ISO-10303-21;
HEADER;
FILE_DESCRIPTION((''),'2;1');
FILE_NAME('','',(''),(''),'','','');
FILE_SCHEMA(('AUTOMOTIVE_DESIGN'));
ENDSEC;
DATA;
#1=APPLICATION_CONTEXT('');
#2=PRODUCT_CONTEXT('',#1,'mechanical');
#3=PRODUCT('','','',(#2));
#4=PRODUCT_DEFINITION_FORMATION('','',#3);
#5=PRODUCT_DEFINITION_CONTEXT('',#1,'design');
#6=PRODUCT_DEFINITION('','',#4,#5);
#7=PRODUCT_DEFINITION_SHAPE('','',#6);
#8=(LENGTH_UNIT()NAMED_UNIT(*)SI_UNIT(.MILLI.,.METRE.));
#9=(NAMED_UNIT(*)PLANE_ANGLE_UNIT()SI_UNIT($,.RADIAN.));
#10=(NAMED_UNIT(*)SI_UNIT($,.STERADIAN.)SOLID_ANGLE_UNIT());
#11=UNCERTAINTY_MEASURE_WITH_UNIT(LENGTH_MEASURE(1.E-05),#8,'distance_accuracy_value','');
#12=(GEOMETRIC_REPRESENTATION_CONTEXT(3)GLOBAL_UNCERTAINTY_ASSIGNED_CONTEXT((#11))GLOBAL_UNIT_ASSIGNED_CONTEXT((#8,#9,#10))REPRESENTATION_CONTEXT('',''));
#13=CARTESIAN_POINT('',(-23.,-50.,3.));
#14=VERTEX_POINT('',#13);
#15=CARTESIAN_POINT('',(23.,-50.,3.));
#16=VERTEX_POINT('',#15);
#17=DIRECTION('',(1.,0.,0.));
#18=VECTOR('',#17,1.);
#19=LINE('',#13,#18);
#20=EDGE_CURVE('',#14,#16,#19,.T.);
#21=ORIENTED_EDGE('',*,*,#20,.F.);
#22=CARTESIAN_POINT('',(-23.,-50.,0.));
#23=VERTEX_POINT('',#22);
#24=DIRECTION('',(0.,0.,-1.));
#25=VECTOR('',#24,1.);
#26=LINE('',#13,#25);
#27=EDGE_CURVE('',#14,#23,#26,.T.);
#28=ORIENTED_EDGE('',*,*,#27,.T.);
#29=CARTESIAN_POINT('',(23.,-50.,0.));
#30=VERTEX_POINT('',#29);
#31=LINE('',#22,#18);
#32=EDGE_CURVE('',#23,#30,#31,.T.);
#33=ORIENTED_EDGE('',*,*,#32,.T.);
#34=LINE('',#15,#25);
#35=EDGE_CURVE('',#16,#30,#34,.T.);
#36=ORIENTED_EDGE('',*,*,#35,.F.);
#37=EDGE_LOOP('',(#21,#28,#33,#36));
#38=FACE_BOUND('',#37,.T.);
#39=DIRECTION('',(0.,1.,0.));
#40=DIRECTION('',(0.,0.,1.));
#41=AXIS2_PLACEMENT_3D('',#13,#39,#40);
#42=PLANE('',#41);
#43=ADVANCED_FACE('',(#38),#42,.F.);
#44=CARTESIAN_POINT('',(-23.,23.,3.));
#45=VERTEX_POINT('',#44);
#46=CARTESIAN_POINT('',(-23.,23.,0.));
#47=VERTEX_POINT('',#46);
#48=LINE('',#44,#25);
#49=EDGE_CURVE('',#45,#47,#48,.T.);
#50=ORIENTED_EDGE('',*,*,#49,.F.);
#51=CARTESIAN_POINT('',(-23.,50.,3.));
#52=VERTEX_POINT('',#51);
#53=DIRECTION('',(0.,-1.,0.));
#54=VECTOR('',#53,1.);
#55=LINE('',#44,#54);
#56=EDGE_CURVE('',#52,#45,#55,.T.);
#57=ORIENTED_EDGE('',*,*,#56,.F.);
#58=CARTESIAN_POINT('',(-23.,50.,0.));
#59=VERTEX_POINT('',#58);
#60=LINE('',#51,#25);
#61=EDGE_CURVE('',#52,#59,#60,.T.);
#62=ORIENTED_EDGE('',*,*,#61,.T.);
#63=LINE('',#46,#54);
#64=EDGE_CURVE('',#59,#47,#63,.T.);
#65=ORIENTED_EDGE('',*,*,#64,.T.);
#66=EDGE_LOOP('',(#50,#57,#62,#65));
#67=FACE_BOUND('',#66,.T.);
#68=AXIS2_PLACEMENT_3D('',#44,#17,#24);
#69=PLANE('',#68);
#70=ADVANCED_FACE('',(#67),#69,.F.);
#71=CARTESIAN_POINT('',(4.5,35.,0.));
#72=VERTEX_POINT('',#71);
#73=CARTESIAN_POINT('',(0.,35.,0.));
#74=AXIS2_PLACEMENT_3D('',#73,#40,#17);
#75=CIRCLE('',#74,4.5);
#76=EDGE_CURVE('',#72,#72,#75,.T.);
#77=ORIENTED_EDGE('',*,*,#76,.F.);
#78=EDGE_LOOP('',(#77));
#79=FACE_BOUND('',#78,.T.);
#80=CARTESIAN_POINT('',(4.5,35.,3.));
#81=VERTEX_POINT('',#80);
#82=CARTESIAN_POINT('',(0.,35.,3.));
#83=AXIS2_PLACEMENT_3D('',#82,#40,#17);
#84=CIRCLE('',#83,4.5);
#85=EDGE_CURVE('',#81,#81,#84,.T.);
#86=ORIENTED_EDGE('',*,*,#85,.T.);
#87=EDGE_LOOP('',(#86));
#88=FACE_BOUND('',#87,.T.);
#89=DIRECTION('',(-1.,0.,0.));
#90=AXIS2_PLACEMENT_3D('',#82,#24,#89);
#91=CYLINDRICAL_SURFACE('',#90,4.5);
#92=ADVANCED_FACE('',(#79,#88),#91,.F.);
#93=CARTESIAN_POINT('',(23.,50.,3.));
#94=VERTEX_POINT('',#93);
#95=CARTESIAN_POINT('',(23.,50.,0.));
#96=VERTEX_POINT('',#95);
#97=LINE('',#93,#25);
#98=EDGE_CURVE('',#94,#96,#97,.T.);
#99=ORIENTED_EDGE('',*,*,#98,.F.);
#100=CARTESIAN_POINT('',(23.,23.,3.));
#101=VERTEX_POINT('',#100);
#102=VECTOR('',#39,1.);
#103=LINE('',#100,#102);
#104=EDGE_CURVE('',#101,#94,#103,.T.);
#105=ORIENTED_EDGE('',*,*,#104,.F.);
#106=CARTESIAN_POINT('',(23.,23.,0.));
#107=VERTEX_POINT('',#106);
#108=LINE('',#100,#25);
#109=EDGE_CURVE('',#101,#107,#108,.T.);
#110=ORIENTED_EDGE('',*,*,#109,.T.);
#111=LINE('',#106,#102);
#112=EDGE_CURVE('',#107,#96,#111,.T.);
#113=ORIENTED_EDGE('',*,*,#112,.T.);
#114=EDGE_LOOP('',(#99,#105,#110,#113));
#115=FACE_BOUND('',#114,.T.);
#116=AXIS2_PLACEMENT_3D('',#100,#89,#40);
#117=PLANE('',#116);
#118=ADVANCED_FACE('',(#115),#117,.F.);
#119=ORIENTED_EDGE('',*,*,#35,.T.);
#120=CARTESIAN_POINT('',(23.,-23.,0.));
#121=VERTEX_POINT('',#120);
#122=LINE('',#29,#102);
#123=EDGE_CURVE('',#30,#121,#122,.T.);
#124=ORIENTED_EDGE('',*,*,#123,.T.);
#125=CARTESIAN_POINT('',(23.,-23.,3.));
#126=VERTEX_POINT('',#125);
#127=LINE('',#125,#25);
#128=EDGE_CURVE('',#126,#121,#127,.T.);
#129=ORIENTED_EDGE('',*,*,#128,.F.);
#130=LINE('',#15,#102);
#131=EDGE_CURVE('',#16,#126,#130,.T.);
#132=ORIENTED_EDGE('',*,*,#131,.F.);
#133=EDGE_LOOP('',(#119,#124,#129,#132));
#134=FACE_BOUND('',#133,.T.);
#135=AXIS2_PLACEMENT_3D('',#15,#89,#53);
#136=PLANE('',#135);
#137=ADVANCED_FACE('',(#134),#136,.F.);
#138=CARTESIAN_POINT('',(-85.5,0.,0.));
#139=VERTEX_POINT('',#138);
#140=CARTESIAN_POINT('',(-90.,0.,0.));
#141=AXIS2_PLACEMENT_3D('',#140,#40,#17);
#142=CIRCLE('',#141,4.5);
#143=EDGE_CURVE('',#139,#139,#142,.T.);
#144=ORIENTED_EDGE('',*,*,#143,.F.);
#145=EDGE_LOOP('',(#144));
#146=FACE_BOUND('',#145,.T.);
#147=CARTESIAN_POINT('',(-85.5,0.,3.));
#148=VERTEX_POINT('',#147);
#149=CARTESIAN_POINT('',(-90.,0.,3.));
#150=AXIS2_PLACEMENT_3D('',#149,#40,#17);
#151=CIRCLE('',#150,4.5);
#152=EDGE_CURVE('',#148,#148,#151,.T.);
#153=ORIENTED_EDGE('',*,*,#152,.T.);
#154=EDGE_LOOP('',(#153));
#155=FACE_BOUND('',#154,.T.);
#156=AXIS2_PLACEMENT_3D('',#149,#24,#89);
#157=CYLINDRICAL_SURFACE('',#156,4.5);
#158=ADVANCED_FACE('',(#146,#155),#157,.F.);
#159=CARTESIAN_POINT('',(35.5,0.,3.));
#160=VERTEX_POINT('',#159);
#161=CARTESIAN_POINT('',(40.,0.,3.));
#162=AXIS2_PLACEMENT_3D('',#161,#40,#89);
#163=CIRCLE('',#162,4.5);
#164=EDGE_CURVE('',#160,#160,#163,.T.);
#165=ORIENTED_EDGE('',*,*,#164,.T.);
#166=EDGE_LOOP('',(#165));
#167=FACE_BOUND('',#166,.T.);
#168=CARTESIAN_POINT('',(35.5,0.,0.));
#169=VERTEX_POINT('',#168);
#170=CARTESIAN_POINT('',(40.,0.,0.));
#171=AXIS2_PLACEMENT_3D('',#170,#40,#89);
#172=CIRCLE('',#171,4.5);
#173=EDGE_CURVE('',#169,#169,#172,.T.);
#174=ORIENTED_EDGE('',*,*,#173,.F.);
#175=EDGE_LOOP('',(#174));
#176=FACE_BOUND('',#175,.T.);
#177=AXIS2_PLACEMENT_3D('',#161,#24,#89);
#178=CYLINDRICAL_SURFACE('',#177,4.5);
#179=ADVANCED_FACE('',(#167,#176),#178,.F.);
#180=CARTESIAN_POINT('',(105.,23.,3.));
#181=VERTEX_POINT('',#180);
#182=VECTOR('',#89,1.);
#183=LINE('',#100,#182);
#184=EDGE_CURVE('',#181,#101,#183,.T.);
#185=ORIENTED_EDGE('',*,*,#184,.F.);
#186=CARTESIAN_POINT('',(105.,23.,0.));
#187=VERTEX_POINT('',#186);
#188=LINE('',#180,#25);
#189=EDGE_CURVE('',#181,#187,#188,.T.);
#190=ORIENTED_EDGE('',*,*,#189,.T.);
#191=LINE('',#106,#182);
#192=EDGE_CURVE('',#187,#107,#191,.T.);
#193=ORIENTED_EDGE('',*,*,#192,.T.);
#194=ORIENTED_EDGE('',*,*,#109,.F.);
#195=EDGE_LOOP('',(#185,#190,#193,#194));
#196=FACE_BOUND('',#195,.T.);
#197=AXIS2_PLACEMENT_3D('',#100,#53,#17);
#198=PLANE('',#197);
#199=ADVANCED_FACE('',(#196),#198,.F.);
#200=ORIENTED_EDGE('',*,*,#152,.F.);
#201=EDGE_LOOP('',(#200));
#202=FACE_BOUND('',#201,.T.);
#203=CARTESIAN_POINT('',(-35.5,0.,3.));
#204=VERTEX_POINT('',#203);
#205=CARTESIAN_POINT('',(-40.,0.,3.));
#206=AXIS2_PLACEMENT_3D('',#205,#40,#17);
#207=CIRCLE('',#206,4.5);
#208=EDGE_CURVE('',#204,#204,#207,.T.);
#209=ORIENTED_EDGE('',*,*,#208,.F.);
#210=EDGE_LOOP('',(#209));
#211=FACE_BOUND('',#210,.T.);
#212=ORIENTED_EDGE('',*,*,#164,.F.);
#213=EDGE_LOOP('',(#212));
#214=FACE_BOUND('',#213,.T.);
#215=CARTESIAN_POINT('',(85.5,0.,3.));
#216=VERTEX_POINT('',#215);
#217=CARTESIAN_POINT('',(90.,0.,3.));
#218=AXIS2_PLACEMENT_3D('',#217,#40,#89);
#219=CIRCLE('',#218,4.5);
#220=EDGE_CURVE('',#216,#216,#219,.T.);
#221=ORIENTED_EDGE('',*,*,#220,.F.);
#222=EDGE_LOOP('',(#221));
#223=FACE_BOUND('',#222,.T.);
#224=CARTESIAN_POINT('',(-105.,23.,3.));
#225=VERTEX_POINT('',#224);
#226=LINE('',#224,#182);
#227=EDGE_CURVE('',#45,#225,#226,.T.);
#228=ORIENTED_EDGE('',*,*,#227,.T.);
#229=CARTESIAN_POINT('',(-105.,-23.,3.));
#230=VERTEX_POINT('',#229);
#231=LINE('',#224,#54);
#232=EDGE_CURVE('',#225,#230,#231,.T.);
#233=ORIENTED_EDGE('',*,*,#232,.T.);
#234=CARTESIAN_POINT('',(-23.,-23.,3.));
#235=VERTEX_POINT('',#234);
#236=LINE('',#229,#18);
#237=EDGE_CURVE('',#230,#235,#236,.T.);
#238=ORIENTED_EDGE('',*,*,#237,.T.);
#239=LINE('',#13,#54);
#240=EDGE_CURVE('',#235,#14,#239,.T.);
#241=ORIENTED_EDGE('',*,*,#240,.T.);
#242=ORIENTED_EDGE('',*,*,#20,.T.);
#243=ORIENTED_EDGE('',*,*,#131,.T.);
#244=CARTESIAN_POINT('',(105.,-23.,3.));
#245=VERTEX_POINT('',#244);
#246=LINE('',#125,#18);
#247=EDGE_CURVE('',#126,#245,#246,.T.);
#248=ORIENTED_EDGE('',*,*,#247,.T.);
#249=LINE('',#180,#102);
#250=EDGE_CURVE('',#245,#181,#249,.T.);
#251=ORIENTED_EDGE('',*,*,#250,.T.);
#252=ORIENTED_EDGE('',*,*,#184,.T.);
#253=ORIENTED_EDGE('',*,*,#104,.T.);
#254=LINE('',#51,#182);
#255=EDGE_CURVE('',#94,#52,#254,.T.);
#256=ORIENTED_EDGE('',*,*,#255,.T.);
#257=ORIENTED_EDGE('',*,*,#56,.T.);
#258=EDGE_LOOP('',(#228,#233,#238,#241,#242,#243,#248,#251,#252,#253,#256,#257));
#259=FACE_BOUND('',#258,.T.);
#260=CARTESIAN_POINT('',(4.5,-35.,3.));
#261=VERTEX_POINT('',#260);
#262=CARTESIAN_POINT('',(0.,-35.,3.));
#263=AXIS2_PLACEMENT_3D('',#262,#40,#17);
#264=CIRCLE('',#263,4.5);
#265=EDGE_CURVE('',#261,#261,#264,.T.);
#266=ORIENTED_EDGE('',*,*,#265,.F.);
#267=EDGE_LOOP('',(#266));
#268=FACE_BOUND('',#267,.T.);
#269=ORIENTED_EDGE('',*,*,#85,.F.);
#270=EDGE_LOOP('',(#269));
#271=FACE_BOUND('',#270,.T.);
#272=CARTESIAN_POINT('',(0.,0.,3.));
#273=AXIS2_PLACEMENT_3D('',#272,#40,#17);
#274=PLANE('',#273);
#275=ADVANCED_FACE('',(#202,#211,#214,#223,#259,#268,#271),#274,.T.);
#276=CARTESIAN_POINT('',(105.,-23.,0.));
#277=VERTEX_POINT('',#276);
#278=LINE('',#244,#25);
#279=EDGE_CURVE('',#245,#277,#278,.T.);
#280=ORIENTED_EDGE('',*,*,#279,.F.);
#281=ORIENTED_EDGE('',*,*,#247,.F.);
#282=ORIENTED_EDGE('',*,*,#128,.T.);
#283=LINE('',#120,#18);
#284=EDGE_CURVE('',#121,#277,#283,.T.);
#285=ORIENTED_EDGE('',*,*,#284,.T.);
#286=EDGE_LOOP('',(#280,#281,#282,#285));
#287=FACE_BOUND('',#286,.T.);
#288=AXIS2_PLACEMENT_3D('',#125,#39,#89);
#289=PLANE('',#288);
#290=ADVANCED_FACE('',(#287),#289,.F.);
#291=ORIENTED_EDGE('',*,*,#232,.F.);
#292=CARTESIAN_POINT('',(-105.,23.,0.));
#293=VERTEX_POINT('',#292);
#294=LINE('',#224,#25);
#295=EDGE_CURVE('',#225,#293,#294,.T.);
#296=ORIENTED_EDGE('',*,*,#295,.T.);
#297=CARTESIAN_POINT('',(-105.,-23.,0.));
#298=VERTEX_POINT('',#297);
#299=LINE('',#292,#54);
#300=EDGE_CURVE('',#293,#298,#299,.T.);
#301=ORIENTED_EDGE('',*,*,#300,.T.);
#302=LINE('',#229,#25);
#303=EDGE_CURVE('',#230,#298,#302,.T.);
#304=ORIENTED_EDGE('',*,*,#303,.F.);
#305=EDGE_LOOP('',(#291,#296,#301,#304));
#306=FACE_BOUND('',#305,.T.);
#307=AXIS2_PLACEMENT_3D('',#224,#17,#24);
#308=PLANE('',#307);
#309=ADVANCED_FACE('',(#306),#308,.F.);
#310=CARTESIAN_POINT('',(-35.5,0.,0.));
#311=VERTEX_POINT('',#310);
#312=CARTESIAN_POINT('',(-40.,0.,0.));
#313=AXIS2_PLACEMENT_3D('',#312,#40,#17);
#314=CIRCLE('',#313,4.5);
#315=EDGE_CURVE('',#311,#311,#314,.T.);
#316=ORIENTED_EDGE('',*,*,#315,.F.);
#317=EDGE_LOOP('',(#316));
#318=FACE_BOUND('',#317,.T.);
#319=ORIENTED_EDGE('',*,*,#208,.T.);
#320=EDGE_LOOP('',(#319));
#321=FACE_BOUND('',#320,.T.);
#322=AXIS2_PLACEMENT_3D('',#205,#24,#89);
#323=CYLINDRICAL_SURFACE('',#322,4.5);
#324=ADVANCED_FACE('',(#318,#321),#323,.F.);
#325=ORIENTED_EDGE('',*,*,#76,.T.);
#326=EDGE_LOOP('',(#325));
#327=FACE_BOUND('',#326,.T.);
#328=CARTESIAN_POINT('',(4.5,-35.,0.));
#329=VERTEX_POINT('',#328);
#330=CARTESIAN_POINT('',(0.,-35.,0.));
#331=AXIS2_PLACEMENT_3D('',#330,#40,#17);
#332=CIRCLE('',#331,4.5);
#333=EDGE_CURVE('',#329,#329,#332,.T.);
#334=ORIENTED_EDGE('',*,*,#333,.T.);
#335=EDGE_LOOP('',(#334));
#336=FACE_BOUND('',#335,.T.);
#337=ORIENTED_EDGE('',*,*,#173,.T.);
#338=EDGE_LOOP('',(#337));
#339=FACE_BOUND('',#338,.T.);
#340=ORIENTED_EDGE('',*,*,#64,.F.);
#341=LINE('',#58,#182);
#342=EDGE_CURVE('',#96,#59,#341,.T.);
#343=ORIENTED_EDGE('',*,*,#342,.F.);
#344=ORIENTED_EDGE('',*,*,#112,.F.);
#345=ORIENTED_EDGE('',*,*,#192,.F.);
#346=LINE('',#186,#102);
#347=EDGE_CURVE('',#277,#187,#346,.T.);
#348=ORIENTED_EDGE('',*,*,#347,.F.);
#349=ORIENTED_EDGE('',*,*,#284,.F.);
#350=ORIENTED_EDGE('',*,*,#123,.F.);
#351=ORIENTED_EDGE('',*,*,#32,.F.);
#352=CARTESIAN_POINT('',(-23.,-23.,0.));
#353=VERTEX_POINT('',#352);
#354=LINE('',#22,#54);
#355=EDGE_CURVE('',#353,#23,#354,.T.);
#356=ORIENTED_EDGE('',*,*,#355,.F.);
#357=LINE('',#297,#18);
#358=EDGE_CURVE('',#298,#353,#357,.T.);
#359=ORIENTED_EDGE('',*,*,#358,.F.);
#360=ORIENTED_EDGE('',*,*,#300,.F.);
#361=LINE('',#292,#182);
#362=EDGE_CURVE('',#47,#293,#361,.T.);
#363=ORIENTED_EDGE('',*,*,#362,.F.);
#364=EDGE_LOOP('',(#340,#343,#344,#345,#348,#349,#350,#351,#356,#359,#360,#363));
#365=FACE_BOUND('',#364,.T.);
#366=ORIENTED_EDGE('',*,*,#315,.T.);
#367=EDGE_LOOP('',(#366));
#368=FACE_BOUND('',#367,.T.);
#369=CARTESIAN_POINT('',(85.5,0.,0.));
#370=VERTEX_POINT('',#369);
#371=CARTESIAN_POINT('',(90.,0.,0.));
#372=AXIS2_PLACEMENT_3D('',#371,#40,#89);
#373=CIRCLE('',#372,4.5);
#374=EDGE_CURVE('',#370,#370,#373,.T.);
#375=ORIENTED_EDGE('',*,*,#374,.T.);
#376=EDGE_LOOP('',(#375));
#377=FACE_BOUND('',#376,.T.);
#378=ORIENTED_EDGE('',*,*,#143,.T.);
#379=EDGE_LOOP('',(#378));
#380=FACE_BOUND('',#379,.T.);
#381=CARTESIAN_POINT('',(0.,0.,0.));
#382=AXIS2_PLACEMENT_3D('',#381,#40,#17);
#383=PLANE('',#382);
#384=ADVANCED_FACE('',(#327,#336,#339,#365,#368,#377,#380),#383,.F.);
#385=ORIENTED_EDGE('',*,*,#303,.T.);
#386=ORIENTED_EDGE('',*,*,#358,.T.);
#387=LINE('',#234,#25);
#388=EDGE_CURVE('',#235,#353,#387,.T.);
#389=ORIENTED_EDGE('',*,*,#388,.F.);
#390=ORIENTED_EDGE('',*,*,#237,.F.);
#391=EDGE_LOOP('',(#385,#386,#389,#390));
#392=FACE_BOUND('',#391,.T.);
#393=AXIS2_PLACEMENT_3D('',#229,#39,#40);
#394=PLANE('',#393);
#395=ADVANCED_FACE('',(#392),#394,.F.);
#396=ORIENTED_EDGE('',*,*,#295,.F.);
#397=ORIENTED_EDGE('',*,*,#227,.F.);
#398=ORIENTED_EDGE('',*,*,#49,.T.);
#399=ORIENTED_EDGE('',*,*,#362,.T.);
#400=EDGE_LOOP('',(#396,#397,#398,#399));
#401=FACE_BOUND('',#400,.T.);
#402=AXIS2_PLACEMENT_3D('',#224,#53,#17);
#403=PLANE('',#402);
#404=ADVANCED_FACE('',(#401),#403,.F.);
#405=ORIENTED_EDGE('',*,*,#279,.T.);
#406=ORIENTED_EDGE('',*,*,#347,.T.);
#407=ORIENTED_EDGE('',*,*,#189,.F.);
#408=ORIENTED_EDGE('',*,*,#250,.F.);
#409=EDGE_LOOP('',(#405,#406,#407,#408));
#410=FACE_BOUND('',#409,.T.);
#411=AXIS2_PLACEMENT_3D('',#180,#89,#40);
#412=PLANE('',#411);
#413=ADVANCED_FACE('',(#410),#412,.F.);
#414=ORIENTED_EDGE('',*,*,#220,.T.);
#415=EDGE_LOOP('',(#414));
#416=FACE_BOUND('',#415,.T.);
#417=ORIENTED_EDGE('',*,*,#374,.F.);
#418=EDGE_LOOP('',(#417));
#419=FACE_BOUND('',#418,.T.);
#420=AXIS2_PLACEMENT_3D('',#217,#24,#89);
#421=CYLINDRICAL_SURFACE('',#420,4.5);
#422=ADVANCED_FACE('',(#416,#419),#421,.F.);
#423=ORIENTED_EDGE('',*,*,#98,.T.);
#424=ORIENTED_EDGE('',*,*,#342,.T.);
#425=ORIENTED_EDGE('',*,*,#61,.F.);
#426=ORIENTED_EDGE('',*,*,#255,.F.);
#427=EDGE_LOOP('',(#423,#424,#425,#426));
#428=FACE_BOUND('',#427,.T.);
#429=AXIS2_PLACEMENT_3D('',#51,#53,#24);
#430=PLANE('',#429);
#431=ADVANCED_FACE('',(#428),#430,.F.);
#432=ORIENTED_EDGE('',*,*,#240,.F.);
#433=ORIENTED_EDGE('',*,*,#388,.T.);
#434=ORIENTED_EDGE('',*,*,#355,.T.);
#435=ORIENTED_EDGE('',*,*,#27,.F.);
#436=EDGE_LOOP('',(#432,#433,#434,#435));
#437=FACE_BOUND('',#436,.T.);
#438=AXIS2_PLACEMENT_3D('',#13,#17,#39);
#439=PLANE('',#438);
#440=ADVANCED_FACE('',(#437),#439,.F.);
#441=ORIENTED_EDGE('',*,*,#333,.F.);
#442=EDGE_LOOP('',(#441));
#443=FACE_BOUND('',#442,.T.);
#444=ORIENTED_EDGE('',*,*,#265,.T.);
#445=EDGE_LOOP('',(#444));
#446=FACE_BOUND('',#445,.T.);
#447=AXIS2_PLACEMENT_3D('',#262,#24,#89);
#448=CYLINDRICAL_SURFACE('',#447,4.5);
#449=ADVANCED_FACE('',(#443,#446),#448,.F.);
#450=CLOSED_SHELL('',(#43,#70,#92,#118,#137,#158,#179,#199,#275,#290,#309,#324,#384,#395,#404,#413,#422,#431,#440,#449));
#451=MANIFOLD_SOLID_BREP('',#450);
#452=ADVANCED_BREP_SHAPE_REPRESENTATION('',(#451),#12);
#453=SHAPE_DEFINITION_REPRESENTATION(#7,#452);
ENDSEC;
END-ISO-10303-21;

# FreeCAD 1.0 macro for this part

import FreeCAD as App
import Part
import Sketcher

V = App.Vector
Q = App.Units.Quantity

doc = App.newDocument("Part")
body = doc.addObject("PartDesign::Body", "Body")

sketch1 = doc.addObject("Sketcher::SketchObject", "Sketch")
body.addObject(sketch1)
sketch1.AttachmentSupport = (doc.XY_Plane, [""])
sketch1.MapMode = "FlatFace"
sketch1.addGeometry(Part.LineSegment(V(23, -23, 0), V(105, -23, 0)), False)
sketch1.addGeometry(Part.LineSegment(V(105, -23, 0), V(105, 23, 0)), False)
sketch1.addGeometry(Part.LineSegment(V(105, 23, 0), V(23, 23, 0)), False)
sketch1.addGeometry(Part.LineSegment(V(23, 23, 0), V(23, 50, 0)), False)
sketch1.addGeometry(Part.LineSegment(V(23, 50, 0), V(-23, 50, 0)), False)
sketch1.addGeometry(Part.LineSegment(V(-23, 50, 0), V(-23, 23, 0)), False)
sketch1.addGeometry(Part.LineSegment(V(-23, 23, 0), V(-105, 23, 0)), False)
sketch1.addGeometry(Part.LineSegment(V(-105, 23, 0), V(-105, -23, 0)), False)
sketch1.addGeometry(Part.LineSegment(V(-105, -23, 0), V(-23, -23, 0)), False)
sketch1.addGeometry(Part.LineSegment(V(-23, -23, 0), V(-23, -50, 0)), False)
sketch1.addGeometry(Part.LineSegment(V(-23, -50, 0), V(23, -50, 0)), False)
sketch1.addGeometry(Part.LineSegment(V(23, -50, 0), V(23, -23, 0)), False)
sketch1.addGeometry(Part.Circle(V(0, -35, 0), V(0, 0, 1), 4.5), False)
sketch1.addGeometry(Part.Circle(V(-90, 0, 0), V(0, 0, 1), 4.5), False)
sketch1.addGeometry(Part.Circle(V(-40, 0, 0), V(0, 0, 1), 4.5), False)
sketch1.addGeometry(Part.Circle(V(40, 0, 0), V(0, 0, 1), 4.5), False)
sketch1.addGeometry(Part.Circle(V(90, 0, 0), V(0, 0, 1), 4.5), False)
sketch1.addGeometry(Part.Circle(V(0, 35, 0), V(0, 0, 1), 4.5), False)
sketch1.addConstraint(Sketcher.Constraint("Coincident", 0, 2, 1, 1))
sketch1.addConstraint(Sketcher.Constraint("Coincident", 1, 2, 2, 1))
sketch1.addConstraint(Sketcher.Constraint("Coincident", 2, 2, 3, 1))
sketch1.addConstraint(Sketcher.Constraint("Coincident", 3, 2, 4, 1))
sketch1.addConstraint(Sketcher.Constraint("Coincident", 4, 2, 5, 1))
sketch1.addConstraint(Sketcher.Constraint("Coincident", 5, 2, 6, 1))
sketch1.addConstraint(Sketcher.Constraint("Coincident", 6, 2, 7, 1))
sketch1.addConstraint(Sketcher.Constraint("Coincident", 7, 2, 8, 1))
sketch1.addConstraint(Sketcher.Constraint("Coincident", 8, 2, 9, 1))
sketch1.addConstraint(Sketcher.Constraint("Coincident", 9, 2, 10, 1))
sketch1.addConstraint(Sketcher.Constraint("Coincident", 10, 2, 11, 1))
sketch1.addConstraint(Sketcher.Constraint("Coincident", 11, 2, 0, 1))
sketch1.addConstraint(Sketcher.Constraint("Horizontal", 0))
sketch1.addConstraint(Sketcher.Constraint("Vertical", 1))
sketch1.addConstraint(Sketcher.Constraint("Horizontal", 2))
sketch1.addConstraint(Sketcher.Constraint("Vertical", 3))
sketch1.addConstraint(Sketcher.Constraint("Horizontal", 4))
sketch1.addConstraint(Sketcher.Constraint("Vertical", 5))
sketch1.addConstraint(Sketcher.Constraint("Horizontal", 6))
sketch1.addConstraint(Sketcher.Constraint("Vertical", 7))
sketch1.addConstraint(Sketcher.Constraint("Horizontal", 8))
sketch1.addConstraint(Sketcher.Constraint("Vertical", 9))
sketch1.addConstraint(Sketcher.Constraint("Horizontal", 10))
sketch1.addConstraint(Sketcher.Constraint("Vertical", 11))
sketch1.addConstraint(Sketcher.Constraint("Equal", 12, 13))
sketch1.addConstraint(Sketcher.Constraint("Equal", 13, 14))
sketch1.addConstraint(Sketcher.Constraint("Equal", 14, 15))
sketch1.addConstraint(Sketcher.Constraint("Equal", 15, 16))
sketch1.addConstraint(Sketcher.Constraint("Equal", 16, 17))
sketch1.addConstraint(Sketcher.Constraint("Symmetric", 14, 3, 15, 3, -1, 1))
sketch1.addConstraint(Sketcher.Constraint("Symmetric", 13, 3, 16, 3, -1, 1))
sketch1.addConstraint(Sketcher.Constraint("Symmetric", 12, 3, 17, 3, -1, 1))
sketch1.addConstraint(Sketcher.Constraint("Symmetric", 0, 2, 6, 2, -1, 1))
sketch1.addConstraint(Sketcher.Constraint("Symmetric", 2, 2, 8, 2, -1, 1))
sketch1.addConstraint(Sketcher.Constraint("Symmetric", 4, 2, 10, 2, -1, 1))
sketch1.addConstraint(Sketcher.Constraint("Symmetric", 2, 2, 5, 2, -2))
sketch1.addConstraint(Sketcher.Constraint("PointOnObject", 12, 3, -2))
sketch1.addConstraint(Sketcher.Constraint("PointOnObject", 13, 3, -1))
sketch1.addConstraint(Sketcher.Constraint("PointOnObject", 14, 3, -1))
sketch1.addConstraint(Sketcher.Constraint("Equal", 10, 1))
sketch1.addConstraint(Sketcher.Constraint("Diameter", 12, Q("9 mm")))
sketch1.addConstraint(Sketcher.Constraint("DistanceX", 0, 1, 0, 2, Q("82 mm")))
sketch1.addConstraint(Sketcher.Constraint("DistanceX", 4, 2, 4, 1, Q("46 mm")))
sketch1.addConstraint(Sketcher.Constraint("DistanceY", 3, 1, 3, 2, Q("27 mm")))
sketch1.addConstraint(Sketcher.Constraint("DistanceY", 12, 3, -1, 1, Q("35 mm")))
sketch1.addConstraint(Sketcher.Constraint("DistanceX", 13, 3, -1, 1, Q("90 mm")))
sketch1.addConstraint(Sketcher.Constraint("DistanceX", 14, 3, -1, 1, Q("40 mm")))
pad1 = doc.addObject("PartDesign::Pad", "Pad")
body.addObject(pad1)
pad1.Profile = sketch1
pad1.Length = 3

doc.recompute()
